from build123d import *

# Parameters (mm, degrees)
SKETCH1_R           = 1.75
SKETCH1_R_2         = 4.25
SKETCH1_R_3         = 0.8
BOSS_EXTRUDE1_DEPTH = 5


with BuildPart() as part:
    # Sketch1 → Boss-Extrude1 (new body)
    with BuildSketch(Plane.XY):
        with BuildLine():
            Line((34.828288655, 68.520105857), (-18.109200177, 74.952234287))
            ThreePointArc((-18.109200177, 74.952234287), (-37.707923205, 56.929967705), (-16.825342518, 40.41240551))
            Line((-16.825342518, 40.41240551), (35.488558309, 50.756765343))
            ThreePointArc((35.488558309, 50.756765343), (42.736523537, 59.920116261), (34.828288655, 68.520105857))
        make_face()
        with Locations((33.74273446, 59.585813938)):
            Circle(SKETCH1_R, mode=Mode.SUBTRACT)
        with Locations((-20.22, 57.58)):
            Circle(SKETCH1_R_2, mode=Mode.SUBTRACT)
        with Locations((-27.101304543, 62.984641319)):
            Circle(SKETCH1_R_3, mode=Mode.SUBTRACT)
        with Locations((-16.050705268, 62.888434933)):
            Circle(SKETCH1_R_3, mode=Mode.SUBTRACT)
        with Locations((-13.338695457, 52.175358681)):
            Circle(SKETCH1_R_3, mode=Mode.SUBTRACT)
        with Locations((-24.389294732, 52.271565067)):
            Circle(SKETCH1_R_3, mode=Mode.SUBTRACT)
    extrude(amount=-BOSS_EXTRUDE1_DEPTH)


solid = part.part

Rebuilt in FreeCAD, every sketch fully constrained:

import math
import FreeCAD as App
import Part
import Sketcher

doc = App.newDocument("Part")
params = doc.addObject("Spreadsheet::Sheet", "Params")
for row, (alias, value) in enumerate([
    ("sketch1_radius", "9 mm"),
    ("sketch1_diameter", "1.6 mm"),
    ("sketch1_diameter2", "8.5 mm"),
    ("sketch1_diameter3", "3.5 mm"),
    ("sketch1_radius2", "17.5 mm"),
    ("pad1_length", "5 mm"),
], start=1):
    params.set(f"A{row}", alias)
    params.set(f"B{row}", "=" + value)
    params.setAlias(f"B{row}", alias)

body = doc.addObject("PartDesign::Body", "Body")

sketch1 = body.newObject("Sketcher::SketchObject", "Sketch")
sketch1.AttachmentSupport = (doc.getObject("XY_Plane"), [""])
sketch1.MapMode = "FlatFace"
sketch1.addGeometry(Part.LineSegment(App.Vector(34.8, 68.5, 0), App.Vector(-18.1, 75, 0)), False)
sketch1.addGeometry(Part.ArcOfCircle(Part.Circle(App.Vector(-20.2, 57.6, 0), App.Vector(0, 0, 1), 17.5), math.radians(83), math.radians(281)), False)
sketch1.addGeometry(Part.LineSegment(App.Vector(-16.8, 40.4, 0), App.Vector(35.5, 50.8, 0)), False)
sketch1.addGeometry(Part.ArcOfCircle(Part.Circle(App.Vector(33.7, 59.6, 0), App.Vector(0, 0, 1), 9), math.radians(-79), math.radians(83)), False)
sketch1.addGeometry(Part.Circle(App.Vector(-24.4, 52.3, 0), App.Vector(0, 0, 1), 0.8), False)
sketch1.addGeometry(Part.Circle(App.Vector(-13.3, 52.2, 0), App.Vector(0, 0, 1), 0.8), False)
sketch1.addGeometry(Part.Circle(App.Vector(-20.2, 57.6, 0), App.Vector(0, 0, 1), 4.2), False)
sketch1.addGeometry(Part.Circle(App.Vector(-27.1, 63, 0), App.Vector(0, 0, 1), 0.8), False)
sketch1.addGeometry(Part.Circle(App.Vector(-16.1, 62.9, 0), App.Vector(0, 0, 1), 0.8), False)
sketch1.addGeometry(Part.Circle(App.Vector(33.7, 59.6, 0), App.Vector(0, 0, 1), 1.8), False)
sketch1.addConstraint(Sketcher.Constraint("Tangent", 0, 2, 1, 1))
sketch1.addConstraint(Sketcher.Constraint("Tangent", 1, 2, 2, 1))
sketch1.addConstraint(Sketcher.Constraint("Tangent", 2, 2, 3, 1))
sketch1.addConstraint(Sketcher.Constraint("Tangent", 3, 2, 0, 1))
sketch1.addConstraint(Sketcher.Constraint("Coincident", 6, 3, 1, 3))
sketch1.addConstraint(Sketcher.Constraint("Coincident", 9, 3, 3, 3))
sketch1.addConstraint(Sketcher.Constraint("Equal", 4, 5))
sketch1.addConstraint(Sketcher.Constraint("Equal", 5, 7))
sketch1.addConstraint(Sketcher.Constraint("Equal", 7, 8))
sketch1.addConstraint(Sketcher.Constraint("Radius", 3, 9.0))
sketch1.addConstraint(Sketcher.Constraint("Diameter", 4, 1.6))
sketch1.addConstraint(Sketcher.Constraint("Diameter", 6, 8.5))
sketch1.addConstraint(Sketcher.Constraint("Diameter", 9, 3.5))
sketch1.addConstraint(Sketcher.Constraint("Radius", 1, 17.5))
sketch1.addConstraint(Sketcher.Constraint("DistanceX", 1, 3, -1, 1, 20.22))
sketch1.addConstraint(Sketcher.Constraint("DistanceY", -1, 1, 1, 3, 57.58))
sketch1.addConstraint(Sketcher.Constraint("DistanceX", 0, 2, -1, 1, 18.1092))
sketch1.addConstraint(Sketcher.Constraint("DistanceX", 4, 3, 5, 3, 11.050599))
sketch1.addConstraint(Sketcher.Constraint("DistanceX", 7, 3, 8, 3, 11.050599))
sketch1.addConstraint(Sketcher.Constraint("DistanceY", 8, 3, 0, 2, 12.063799))
sketch1.addConstraint(Sketcher.Constraint("DistanceX", 1, 2, 2, 2, 52.313901))
sketch1.addConstraint(Sketcher.Constraint("DistanceY", -1, 1, 5, 3, 52.175359))
sketch1.addConstraint(Sketcher.Constraint("DistanceY", -1, 1, 7, 3, 62.984641))
sketch1.addConstraint(Sketcher.Constraint("DistanceX", 4, 3, 3, 3, 58.132029))
sketch1.addConstraint(Sketcher.Constraint("DistanceY", 4, 3, 3, 3, 7.314249))
sketch1.addConstraint(Sketcher.Constraint("DistanceX", 7, 3, 4, 3, 2.71201))
sketch1.setExpression("Constraints[9]", "Params.sketch1_radius")
sketch1.setExpression("Constraints[10]", "Params.sketch1_diameter")
sketch1.setExpression("Constraints[11]", "Params.sketch1_diameter2")
sketch1.setExpression("Constraints[12]", "Params.sketch1_diameter3")
sketch1.setExpression("Constraints[13]", "Params.sketch1_radius2")
pad1 = body.newObject("PartDesign::Pad", "Pad")
pad1.Profile = sketch1
pad1.setExpression("Length", "Params.pad1_length")
pad1.Reversed = True

doc.recompute()
